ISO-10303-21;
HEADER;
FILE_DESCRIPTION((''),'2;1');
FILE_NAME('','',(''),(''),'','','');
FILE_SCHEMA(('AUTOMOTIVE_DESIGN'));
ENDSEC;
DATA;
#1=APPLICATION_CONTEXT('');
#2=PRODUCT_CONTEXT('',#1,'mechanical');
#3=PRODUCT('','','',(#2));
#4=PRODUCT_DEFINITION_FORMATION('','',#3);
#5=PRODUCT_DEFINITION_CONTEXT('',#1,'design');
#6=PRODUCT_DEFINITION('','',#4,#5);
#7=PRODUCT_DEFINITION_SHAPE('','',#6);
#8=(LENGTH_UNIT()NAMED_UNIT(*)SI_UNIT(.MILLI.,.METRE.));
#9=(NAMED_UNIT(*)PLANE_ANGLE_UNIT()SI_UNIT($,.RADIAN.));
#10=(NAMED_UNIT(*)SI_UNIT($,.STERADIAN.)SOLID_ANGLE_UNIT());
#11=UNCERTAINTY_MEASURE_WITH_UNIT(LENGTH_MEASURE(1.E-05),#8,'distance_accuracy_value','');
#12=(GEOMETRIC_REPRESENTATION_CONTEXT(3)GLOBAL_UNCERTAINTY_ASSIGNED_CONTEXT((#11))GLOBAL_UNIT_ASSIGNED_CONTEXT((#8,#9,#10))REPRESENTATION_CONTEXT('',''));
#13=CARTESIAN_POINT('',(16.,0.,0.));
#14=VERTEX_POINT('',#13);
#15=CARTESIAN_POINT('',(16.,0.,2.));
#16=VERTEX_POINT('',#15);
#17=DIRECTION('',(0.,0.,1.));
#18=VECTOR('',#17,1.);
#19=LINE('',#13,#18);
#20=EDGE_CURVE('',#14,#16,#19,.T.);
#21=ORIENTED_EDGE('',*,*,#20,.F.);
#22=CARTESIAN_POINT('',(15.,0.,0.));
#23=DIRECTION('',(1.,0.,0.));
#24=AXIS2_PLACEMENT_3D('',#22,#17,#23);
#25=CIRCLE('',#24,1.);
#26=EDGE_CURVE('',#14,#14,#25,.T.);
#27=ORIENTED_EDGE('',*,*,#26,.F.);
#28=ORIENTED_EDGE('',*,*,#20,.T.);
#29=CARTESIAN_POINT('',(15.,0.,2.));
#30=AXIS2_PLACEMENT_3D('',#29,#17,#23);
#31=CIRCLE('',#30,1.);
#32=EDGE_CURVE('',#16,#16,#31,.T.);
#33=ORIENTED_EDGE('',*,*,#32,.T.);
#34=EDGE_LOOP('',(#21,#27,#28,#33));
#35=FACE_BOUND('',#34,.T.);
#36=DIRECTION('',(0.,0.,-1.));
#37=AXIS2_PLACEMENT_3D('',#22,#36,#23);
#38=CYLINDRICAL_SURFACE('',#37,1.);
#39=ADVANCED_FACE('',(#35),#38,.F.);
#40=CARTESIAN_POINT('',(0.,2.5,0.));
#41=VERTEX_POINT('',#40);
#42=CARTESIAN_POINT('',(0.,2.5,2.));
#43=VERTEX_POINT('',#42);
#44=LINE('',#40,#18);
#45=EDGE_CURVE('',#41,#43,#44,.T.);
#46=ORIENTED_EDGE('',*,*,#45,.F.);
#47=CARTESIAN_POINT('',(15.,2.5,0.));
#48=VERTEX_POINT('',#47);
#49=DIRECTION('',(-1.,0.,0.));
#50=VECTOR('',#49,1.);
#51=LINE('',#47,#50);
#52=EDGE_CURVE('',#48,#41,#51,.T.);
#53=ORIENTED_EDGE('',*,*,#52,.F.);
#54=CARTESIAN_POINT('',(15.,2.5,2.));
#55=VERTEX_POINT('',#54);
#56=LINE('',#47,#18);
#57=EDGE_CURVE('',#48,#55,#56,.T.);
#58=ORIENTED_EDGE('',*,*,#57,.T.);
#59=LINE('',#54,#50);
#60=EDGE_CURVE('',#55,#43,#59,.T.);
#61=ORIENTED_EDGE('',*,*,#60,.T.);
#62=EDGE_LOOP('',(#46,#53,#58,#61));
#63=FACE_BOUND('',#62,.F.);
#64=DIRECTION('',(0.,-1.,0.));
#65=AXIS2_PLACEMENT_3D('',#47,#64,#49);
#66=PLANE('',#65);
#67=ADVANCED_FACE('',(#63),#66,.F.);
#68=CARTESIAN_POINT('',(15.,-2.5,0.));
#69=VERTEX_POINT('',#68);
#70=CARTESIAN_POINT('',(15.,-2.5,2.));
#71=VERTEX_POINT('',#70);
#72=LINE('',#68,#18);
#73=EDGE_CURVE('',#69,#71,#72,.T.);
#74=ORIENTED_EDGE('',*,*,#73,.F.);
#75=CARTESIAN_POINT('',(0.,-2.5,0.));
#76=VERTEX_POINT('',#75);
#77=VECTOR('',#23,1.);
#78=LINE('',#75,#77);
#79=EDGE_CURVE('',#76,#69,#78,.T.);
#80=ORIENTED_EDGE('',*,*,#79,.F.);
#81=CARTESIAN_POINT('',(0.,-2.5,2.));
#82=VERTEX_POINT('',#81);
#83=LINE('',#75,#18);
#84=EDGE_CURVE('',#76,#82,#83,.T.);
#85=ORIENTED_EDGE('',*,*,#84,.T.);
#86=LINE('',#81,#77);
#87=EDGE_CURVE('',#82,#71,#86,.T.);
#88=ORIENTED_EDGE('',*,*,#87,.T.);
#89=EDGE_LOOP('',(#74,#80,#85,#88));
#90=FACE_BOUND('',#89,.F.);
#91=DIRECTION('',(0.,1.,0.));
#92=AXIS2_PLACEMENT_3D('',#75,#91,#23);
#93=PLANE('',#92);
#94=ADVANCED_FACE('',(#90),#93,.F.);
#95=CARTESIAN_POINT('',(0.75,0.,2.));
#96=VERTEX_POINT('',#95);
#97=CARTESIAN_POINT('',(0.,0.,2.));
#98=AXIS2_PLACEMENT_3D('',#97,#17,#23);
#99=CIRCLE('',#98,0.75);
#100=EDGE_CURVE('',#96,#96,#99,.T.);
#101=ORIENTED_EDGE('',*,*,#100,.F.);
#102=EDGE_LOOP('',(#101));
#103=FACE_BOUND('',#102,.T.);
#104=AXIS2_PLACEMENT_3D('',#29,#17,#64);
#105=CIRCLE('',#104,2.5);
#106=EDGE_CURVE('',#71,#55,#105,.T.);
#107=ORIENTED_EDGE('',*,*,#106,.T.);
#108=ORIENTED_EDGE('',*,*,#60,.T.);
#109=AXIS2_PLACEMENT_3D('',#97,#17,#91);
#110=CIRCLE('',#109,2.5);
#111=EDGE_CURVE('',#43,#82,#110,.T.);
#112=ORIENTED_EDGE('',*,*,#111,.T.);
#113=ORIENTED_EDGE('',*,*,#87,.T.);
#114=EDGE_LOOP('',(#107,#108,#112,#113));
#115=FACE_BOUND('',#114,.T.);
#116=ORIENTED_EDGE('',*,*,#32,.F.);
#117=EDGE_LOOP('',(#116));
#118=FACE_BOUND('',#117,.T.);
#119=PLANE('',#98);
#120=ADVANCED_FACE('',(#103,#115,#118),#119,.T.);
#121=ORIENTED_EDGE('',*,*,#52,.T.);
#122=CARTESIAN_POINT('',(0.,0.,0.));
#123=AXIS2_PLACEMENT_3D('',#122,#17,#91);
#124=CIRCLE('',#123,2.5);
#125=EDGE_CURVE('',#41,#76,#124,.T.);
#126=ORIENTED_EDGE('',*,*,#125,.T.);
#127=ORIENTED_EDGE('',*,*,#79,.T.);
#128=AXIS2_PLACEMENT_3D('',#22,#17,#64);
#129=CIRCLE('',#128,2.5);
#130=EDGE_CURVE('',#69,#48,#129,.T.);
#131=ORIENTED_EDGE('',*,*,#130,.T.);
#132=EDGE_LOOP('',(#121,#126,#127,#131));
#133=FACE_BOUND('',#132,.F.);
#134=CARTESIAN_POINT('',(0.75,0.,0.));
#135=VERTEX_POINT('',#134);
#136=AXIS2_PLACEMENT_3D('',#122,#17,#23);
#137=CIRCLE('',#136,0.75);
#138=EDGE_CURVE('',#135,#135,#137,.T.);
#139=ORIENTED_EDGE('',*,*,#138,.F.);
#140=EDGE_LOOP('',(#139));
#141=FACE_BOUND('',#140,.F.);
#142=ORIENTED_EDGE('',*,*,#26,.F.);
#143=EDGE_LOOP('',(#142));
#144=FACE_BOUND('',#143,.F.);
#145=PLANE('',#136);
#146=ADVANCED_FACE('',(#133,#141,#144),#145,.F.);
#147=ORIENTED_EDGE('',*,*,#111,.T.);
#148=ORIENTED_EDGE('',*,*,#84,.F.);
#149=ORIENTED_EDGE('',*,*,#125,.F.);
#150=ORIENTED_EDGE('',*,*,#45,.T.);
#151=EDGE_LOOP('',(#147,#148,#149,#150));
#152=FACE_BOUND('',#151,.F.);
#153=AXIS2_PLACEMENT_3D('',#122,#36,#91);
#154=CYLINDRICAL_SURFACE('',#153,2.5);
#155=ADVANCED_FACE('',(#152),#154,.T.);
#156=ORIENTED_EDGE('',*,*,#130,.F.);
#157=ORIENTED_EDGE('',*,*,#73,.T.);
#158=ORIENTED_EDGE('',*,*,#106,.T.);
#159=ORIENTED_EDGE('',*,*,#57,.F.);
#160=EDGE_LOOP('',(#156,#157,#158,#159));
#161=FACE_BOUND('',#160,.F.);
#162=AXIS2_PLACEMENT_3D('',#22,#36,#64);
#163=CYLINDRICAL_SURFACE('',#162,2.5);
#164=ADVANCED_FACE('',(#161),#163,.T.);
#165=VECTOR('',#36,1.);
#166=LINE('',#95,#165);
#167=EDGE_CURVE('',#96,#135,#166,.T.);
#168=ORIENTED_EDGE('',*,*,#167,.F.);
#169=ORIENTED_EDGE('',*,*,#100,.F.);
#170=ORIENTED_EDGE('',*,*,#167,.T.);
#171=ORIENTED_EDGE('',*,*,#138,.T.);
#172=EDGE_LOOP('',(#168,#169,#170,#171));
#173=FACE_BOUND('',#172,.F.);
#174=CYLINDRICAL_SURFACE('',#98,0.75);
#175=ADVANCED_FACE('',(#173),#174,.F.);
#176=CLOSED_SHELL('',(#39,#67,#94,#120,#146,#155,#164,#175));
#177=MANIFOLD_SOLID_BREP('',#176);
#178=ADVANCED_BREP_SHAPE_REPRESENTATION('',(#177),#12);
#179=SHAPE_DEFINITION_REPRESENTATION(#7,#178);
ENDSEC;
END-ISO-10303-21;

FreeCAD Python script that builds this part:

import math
import FreeCAD as App
import Part
import Sketcher
from FreeCAD import Vector
Q = App.Units.Quantity

doc = App.newDocument("Part")
body = doc.addObject("PartDesign::Body", "Body")

# Sketch on XY plane
sketch1 = body.newObject("Sketcher::SketchObject", "Sketch")
sketch1.AttachmentSupport = (doc.getObject("XY_Plane"), [""])
sketch1.MapMode = "FlatFace"
sketch1.addGeometry([
    Part.ArcOfCircle(Part.Circle(Vector(0, 0, 0), Vector(0, 0, 1), 2.5), math.radians(90), math.radians(270)),  # 0
    Part.LineSegment(Vector(0, -2.5, 0), Vector(15, -2.5, 0)),  # 1
    Part.ArcOfCircle(Part.Circle(Vector(15, 0, 0), Vector(0, 0, 1), 2.5), math.radians(-90), math.radians(90)),  # 2
    Part.LineSegment(Vector(15, 2.5, 0), Vector(0, 2.5, 0)),  # 3
    Part.Circle(Vector(0, 0, 0), Vector(0, 0, 1), 1),  # 4
    Part.Circle(Vector(15, 0, 0), Vector(0, 0, 1), 1),  # 5
], False)
sketch1.addConstraint([
    Sketcher.Constraint("Tangent", 0, 2, 1, 1),
    Sketcher.Constraint("Tangent", 1, 2, 2, 1),
    Sketcher.Constraint("Tangent", 2, 2, 3, 1),
    Sketcher.Constraint("Tangent", 3, 2, 0, 1),
    Sketcher.Constraint("Horizontal", 1),
    Sketcher.Constraint("Horizontal", 3),
    Sketcher.Constraint("Coincident", 0, 3, -1, 1),
    Sketcher.Constraint("Coincident", 4, 3, -1, 1),
    Sketcher.Constraint("Coincident", 5, 3, 2, 3),
    Sketcher.Constraint("Equal", 4, 5),
    Sketcher.Constraint("Diameter", 4, Q("2 mm")),
    Sketcher.Constraint("Radius", 0, Q("2.5 mm")),
    Sketcher.Constraint("DistanceX", 1, 1, 1, 2, Q("15 mm")),
])
pad1 = body.newObject("PartDesign::Pad", "Pad")
pad1.Profile = sketch1
pad1.Length = 2

# Sketch on XY plane
sketch2 = body.newObject("Sketcher::SketchObject", "Sketch001")
sketch2.AttachmentSupport = (doc.getObject("XY_Plane"), [""])
sketch2.MapMode = "FlatFace"
sketch2.AttachmentOffset = App.Placement(Vector(0, 0, 2), App.Rotation())
sketch2.addGeometry([
    Part.Circle(Vector(0, 0, 0), Vector(0, 0, 1), 1),
    Part.Circle(Vector(0, 0, 0), Vector(0, 0, 1), 0.75),
], False)
sketch2.addConstraint([
    Sketcher.Constraint("Coincident", 0, 3, -1, 1),
    Sketcher.Constraint("Coincident", 1, 3, -1, 1),
    Sketcher.Constraint("Diameter", 1, Q("1.5 mm")),
    Sketcher.Constraint("Diameter", 0, Q("2 mm")),
])
pad2 = body.newObject("PartDesign::Pad", "Pad001")
pad2.Profile = sketch2
pad2.Length = 2
pad2.Reversed = True

doc.recompute()
